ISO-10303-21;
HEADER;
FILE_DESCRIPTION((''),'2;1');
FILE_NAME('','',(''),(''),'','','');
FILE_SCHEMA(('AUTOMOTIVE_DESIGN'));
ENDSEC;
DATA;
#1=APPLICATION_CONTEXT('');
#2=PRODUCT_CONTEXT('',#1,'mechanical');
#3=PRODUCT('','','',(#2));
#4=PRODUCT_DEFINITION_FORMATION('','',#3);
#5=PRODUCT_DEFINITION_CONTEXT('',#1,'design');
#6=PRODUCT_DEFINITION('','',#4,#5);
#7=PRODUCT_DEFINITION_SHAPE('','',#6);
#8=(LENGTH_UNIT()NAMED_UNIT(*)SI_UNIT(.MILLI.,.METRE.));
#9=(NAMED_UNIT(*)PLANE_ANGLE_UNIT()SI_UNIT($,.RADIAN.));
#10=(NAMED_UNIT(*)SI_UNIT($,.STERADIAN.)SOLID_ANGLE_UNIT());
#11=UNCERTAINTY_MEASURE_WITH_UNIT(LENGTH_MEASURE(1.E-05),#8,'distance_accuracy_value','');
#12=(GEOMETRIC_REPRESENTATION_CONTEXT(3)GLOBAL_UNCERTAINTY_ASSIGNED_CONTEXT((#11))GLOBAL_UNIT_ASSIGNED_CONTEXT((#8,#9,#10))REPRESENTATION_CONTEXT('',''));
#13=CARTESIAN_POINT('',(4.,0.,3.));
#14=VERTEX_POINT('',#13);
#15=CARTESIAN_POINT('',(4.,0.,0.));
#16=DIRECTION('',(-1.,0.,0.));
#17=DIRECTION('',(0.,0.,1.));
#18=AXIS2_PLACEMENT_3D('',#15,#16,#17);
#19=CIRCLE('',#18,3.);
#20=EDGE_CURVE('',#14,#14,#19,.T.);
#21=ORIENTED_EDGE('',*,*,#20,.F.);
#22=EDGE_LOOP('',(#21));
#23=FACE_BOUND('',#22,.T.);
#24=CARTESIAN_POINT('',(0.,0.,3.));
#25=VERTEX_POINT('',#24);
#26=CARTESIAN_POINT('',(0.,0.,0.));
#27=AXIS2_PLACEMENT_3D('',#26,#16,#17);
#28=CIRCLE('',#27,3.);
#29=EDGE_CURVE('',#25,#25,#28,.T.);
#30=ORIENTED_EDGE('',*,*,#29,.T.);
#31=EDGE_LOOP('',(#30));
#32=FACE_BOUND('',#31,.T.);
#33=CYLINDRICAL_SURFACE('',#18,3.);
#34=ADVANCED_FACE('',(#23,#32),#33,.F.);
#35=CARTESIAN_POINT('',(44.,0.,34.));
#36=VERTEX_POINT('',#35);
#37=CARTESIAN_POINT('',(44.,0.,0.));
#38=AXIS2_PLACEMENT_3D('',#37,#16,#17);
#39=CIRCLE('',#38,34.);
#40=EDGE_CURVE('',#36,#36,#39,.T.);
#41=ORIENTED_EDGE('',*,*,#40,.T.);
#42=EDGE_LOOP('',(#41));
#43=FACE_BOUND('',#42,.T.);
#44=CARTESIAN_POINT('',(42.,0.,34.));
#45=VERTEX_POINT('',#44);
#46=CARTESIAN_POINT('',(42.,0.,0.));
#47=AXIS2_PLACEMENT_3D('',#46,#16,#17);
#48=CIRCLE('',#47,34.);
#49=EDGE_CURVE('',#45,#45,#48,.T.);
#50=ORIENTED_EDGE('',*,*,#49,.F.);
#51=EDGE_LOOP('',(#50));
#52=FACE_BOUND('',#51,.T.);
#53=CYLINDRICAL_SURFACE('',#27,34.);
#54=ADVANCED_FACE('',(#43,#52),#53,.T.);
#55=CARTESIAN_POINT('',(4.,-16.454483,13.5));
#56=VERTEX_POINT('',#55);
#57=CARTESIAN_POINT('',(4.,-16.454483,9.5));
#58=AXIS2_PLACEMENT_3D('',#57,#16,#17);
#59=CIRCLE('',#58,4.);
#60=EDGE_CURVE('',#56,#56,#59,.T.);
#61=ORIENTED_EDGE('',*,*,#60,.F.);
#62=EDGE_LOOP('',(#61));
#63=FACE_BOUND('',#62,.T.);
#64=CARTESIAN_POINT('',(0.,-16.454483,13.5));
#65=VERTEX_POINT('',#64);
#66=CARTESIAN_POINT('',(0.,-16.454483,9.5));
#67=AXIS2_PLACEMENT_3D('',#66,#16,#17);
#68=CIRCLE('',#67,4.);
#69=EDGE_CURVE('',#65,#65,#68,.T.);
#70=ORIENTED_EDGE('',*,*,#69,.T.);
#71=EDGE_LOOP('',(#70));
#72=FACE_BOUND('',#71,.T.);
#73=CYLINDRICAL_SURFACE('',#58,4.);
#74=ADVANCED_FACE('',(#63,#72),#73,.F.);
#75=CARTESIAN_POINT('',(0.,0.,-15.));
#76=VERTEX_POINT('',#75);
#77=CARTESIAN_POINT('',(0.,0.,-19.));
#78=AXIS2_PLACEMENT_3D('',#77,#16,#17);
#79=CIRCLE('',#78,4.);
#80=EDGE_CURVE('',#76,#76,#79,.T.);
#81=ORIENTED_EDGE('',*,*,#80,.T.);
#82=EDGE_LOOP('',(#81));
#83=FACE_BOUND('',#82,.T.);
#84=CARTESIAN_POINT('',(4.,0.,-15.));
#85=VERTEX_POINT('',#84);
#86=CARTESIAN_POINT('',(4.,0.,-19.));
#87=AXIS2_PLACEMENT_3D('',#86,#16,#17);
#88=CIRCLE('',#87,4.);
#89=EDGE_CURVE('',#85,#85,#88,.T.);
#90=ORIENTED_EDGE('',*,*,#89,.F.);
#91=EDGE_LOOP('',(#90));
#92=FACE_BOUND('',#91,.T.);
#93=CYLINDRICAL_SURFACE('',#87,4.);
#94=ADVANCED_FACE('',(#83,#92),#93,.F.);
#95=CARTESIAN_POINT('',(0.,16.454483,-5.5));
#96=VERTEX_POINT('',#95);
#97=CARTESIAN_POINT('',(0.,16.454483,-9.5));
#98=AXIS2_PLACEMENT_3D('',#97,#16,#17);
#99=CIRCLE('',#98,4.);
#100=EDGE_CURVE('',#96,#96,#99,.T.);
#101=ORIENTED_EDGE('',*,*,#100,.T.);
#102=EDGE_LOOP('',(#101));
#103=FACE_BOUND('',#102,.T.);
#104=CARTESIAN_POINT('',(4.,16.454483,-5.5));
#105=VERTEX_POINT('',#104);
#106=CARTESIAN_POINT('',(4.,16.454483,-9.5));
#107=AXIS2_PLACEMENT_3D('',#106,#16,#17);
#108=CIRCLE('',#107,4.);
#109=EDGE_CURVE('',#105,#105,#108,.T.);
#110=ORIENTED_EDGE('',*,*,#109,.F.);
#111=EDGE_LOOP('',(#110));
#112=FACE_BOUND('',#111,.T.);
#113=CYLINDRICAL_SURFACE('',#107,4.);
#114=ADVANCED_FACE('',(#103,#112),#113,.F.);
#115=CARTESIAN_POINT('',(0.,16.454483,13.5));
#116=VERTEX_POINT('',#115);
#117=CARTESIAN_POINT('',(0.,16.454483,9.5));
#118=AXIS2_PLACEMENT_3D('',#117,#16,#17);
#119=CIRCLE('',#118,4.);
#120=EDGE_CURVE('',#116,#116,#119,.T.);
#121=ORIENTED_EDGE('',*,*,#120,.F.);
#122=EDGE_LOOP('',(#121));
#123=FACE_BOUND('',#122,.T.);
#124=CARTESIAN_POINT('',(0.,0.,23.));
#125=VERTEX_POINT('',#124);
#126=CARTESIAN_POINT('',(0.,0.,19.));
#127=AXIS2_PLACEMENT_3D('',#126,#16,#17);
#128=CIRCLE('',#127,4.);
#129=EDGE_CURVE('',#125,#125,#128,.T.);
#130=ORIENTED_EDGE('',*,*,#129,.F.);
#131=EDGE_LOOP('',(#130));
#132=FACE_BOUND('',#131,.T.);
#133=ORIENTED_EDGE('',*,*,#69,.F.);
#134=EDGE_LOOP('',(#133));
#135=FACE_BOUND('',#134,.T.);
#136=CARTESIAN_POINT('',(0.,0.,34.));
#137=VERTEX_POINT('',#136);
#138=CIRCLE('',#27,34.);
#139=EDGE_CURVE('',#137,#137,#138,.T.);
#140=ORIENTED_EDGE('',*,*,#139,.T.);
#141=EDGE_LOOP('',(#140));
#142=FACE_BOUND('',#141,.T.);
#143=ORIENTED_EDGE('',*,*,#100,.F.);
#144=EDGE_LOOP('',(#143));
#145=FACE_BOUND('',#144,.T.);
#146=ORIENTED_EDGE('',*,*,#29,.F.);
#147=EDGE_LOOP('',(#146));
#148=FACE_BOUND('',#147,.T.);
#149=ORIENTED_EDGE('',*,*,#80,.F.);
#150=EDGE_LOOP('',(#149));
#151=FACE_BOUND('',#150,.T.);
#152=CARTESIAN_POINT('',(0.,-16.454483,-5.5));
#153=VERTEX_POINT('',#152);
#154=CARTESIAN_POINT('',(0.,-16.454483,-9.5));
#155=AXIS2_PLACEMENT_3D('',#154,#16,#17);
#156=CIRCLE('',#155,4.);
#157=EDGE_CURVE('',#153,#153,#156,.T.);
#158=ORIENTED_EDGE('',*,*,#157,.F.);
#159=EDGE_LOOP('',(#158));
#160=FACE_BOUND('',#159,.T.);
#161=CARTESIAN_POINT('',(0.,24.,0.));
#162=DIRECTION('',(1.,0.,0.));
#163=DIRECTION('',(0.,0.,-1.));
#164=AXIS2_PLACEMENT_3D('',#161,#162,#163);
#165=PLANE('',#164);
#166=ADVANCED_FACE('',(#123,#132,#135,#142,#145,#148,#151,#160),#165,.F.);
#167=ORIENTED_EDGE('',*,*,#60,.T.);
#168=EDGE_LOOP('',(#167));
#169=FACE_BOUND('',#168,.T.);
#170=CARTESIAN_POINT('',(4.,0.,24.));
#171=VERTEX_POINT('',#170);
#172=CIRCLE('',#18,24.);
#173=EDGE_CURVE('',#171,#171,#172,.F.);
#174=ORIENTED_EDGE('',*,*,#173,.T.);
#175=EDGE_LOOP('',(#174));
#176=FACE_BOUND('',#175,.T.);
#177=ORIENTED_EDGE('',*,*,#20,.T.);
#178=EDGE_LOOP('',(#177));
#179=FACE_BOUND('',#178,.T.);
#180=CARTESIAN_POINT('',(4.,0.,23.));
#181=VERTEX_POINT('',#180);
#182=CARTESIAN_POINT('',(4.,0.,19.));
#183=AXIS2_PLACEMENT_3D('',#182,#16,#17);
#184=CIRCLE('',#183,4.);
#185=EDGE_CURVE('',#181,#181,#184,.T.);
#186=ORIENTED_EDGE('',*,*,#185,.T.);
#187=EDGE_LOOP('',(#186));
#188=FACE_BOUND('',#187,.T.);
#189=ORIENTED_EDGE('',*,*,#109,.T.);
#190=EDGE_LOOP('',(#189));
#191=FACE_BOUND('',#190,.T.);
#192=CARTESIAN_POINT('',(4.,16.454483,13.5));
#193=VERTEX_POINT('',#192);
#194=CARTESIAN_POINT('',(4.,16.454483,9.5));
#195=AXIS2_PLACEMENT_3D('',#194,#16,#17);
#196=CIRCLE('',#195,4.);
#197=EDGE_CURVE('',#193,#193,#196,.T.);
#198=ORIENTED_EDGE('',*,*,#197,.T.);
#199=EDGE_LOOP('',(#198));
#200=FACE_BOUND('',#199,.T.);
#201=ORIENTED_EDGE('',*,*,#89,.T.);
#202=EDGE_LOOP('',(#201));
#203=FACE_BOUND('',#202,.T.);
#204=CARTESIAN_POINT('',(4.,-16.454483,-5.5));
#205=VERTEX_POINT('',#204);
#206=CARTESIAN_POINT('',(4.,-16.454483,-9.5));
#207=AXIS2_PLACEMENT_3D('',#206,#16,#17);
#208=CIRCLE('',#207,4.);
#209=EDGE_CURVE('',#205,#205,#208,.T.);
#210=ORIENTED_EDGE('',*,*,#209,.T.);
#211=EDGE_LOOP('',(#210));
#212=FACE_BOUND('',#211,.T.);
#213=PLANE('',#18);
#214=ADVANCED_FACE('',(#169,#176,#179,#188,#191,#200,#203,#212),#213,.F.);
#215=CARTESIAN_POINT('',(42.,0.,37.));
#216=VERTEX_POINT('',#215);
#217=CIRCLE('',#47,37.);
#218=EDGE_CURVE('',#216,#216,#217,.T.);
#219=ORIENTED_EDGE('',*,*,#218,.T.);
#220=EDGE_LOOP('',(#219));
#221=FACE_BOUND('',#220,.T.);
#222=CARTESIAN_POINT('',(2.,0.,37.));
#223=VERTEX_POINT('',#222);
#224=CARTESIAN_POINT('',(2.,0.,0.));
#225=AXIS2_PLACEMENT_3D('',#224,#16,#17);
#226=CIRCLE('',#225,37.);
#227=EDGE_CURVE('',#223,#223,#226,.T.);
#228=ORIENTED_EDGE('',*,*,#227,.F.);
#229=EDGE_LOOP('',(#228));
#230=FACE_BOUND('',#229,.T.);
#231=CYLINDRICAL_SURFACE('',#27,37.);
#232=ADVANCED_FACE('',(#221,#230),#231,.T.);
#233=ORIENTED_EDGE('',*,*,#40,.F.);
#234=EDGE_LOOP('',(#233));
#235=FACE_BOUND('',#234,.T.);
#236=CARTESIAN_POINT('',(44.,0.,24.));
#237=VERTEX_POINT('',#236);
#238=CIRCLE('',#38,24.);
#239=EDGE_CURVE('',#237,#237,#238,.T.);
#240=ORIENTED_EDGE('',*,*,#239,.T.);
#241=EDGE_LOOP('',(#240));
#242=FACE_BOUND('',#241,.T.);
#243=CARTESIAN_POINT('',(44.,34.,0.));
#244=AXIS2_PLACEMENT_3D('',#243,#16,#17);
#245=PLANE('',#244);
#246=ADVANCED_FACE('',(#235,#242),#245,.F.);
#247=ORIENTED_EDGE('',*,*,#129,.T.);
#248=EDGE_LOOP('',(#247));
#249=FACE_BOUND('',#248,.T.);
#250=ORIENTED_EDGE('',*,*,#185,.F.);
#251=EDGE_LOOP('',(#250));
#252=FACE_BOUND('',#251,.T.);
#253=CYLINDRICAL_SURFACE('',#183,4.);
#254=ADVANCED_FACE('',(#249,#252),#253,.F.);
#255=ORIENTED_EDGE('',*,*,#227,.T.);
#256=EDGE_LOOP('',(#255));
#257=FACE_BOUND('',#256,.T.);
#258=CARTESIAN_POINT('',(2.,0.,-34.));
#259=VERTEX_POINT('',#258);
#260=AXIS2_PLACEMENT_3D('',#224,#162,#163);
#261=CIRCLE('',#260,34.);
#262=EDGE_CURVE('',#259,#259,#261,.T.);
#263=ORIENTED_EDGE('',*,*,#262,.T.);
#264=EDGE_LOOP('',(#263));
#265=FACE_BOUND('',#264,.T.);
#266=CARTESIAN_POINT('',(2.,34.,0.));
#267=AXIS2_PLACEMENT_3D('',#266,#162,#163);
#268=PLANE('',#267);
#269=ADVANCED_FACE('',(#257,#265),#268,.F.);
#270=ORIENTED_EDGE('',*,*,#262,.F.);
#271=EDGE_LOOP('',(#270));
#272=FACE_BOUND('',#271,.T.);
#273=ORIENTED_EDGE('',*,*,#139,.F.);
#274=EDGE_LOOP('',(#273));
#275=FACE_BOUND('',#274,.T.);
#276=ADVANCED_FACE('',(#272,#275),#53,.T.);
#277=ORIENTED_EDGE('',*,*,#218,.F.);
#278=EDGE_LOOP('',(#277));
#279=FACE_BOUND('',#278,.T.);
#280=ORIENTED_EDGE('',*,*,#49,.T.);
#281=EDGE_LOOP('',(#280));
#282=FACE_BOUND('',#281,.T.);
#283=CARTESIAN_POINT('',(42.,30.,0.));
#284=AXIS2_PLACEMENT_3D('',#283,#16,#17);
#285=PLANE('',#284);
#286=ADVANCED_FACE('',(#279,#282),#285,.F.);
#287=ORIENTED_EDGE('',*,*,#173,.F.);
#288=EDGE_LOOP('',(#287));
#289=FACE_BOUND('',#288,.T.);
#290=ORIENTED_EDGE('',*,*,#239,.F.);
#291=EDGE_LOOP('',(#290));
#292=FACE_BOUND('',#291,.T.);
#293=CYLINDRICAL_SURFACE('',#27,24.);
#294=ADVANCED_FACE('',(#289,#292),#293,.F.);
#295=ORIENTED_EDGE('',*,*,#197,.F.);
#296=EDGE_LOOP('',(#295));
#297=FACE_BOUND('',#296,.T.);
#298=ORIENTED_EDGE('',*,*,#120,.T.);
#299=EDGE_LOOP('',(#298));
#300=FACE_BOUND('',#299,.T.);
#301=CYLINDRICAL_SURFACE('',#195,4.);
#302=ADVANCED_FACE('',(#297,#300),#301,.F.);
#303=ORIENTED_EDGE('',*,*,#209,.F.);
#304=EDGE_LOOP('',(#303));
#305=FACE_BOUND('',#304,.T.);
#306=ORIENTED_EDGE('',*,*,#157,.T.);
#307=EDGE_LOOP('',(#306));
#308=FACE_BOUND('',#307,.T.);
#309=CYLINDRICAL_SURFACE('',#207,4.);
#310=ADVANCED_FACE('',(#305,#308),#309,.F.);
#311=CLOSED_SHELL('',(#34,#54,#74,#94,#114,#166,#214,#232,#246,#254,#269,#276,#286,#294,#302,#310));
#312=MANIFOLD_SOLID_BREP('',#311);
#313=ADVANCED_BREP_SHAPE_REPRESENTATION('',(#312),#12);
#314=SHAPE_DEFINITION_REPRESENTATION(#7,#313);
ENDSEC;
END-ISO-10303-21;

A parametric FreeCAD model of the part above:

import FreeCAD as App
import Part
import Sketcher

V = App.Vector
Q = App.Units.Quantity

doc = App.newDocument("Part")
body = doc.addObject("PartDesign::Body", "Body")

sketch1 = body.newObject("Sketcher::SketchObject", "Sketch")
sketch1.AttachmentSupport = (doc.getObject("XY_Plane"), [""])
sketch1.MapMode = "FlatFace"
sketch1.addGeometry([
    Part.LineSegment(V(0, 34, 0), V(0, 24, 0)),
    Part.LineSegment(V(0, 24, 0), V(44, 24, 0)),
    Part.LineSegment(V(44, 24, 0), V(44, 34, 0)),
    Part.LineSegment(V(44, 34, 0), V(42, 34, 0)),
    Part.LineSegment(V(42, 34, 0), V(42, 30, 0)),
    Part.LineSegment(V(42, 30, 0), V(2, 30, 0)),
    Part.LineSegment(V(2, 30, 0), V(2, 34, 0)),
    Part.LineSegment(V(2, 34, 0), V(0, 34, 0)),
], False)
sketch1.addConstraint([
    Sketcher.Constraint("Coincident", 0, 2, 1, 1),
    Sketcher.Constraint("Coincident", 1, 2, 2, 1),
    Sketcher.Constraint("Coincident", 2, 2, 3, 1),
    Sketcher.Constraint("Coincident", 3, 2, 4, 1),
    Sketcher.Constraint("Coincident", 4, 2, 5, 1),
    Sketcher.Constraint("Coincident", 5, 2, 6, 1),
    Sketcher.Constraint("Coincident", 6, 2, 7, 1),
    Sketcher.Constraint("Coincident", 7, 2, 0, 1),
    Sketcher.Constraint("Vertical", 0),
    Sketcher.Constraint("Horizontal", 1),
    Sketcher.Constraint("Vertical", 2),
    Sketcher.Constraint("Horizontal", 3),
    Sketcher.Constraint("Vertical", 4),
    Sketcher.Constraint("Horizontal", 5),
    Sketcher.Constraint("Vertical", 6),
    Sketcher.Constraint("Horizontal", 7),
    Sketcher.Constraint("PointOnObject", 0, 2, -2),
    Sketcher.Constraint("Horizontal", 3, 2, 6, 2),
    Sketcher.Constraint("Equal", 3, 7),
    Sketcher.Constraint("DistanceX", 1, 1, 1, 2, Q("44 mm")),
    Sketcher.Constraint("DistanceX", 3, 2, 3, 1, Q("2 mm")),
    Sketcher.Constraint("DistanceY", 0, 2, 0, 1, Q("10 mm")),
    Sketcher.Constraint("DistanceY", 4, 2, 4, 1, Q("4 mm")),
    Sketcher.Constraint("DistanceY", -1, 1, 0, 2, Q("24 mm")),
])
revolution = body.newObject("PartDesign::Revolution", "Revolution")
revolution.Profile = sketch1
revolution.ReferenceAxis = (sketch1, ["H_Axis"])
revolution.Angle = 360

sketch2 = body.newObject("Sketcher::SketchObject", "Sketch001")
sketch2.AttachmentSupport = (doc.getObject("XY_Plane"), [""])
sketch2.MapMode = "FlatFace"
sketch2.addGeometry([
    Part.LineSegment(V(2, 30, 0), V(42, 30, 0)),
    Part.LineSegment(V(42, 30, 0), V(42, 37, 0)),
    Part.LineSegment(V(42, 37, 0), V(2, 37, 0)),
    Part.LineSegment(V(2, 37, 0), V(2, 30, 0)),
], False)
sketch2.addConstraint([
    Sketcher.Constraint("Coincident", 0, 2, 1, 1),
    Sketcher.Constraint("Coincident", 1, 2, 2, 1),
    Sketcher.Constraint("Coincident", 2, 2, 3, 1),
    Sketcher.Constraint("Coincident", 3, 2, 0, 1),
    Sketcher.Constraint("Horizontal", 0),
    Sketcher.Constraint("Vertical", 1),
    Sketcher.Constraint("Horizontal", 2),
    Sketcher.Constraint("Vertical", 3),
    Sketcher.Constraint("DistanceX", 0, 1, 0, 2, Q("40 mm")),
    Sketcher.Constraint("DistanceY", 1, 1, 1, 2, Q("7 mm")),
    Sketcher.Constraint("DistanceX", -1, 1, 0, 2, Q("42 mm")),
    Sketcher.Constraint("DistanceY", -1, 1, 0, 2, Q("30 mm")),
])
revolution2 = body.newObject("PartDesign::Revolution", "Revolution001")
revolution2.Profile = sketch2
revolution2.ReferenceAxis = (sketch2, ["H_Axis"])
revolution2.Angle = 360

sketch3 = body.newObject("Sketcher::SketchObject", "Sketch002")
sketch3.AttachmentSupport = (doc.getObject("YZ_Plane"), [""])
sketch3.MapMode = "FlatFace"
sketch3.addGeometry([
    Part.Circle(V(0, 0, 0), V(0, 0, 1), 24),
    Part.Circle(V(-16.454483, -9.5, 0), V(0, 0, 1), 4),
    Part.Circle(V(-16.454483, 9.5, 0), V(0, 0, 1), 4),
    Part.Circle(V(0, -19, 0), V(0, 0, 1), 4),
    Part.Circle(V(16.454483, -9.5, 0), V(0, 0, 1), 4),
    Part.Circle(V(0, 0, 0), V(0, 0, 1), 3),
    Part.Circle(V(0, 19, 0), V(0, 0, 1), 4),
    Part.Circle(V(16.454483, 9.5, 0), V(0, 0, 1), 4),
], False)
sketch3.addConstraint([
    Sketcher.Constraint("Coincident", 0, 3, -1, 1),
    Sketcher.Constraint("Coincident", 5, 3, -1, 1),
    Sketcher.Constraint("Equal", 1, 2),
    Sketcher.Constraint("Equal", 2, 3),
    Sketcher.Constraint("Equal", 3, 4),
    Sketcher.Constraint("Equal", 4, 6),
    Sketcher.Constraint("Equal", 6, 7),
    Sketcher.Constraint("Symmetric", 2, 3, 4, 3, -1, 1),
    Sketcher.Constraint("Symmetric", 3, 3, 6, 3, -1, 1),
    Sketcher.Constraint("Symmetric", 1, 3, 7, 3, -1, 1),
    Sketcher.Constraint("Symmetric", 1, 3, 4, 3, -2),
    Sketcher.Constraint("PointOnObject", 3, 3, -2),
    Sketcher.Constraint("Diameter", 0, Q("48 mm")),
    Sketcher.Constraint("Diameter", 1, Q("8 mm")),
    Sketcher.Constraint("Diameter", 5, Q("6 mm")),
    Sketcher.Constraint("DistanceY", 3, 3, -1, 1, Q("19 mm")),
    Sketcher.Constraint("DistanceY", 1, 3, 2, 3, Q("19 mm")),
    Sketcher.Constraint("DistanceX", 1, 3, -1, 1, Q("16.454483 mm")),
])
pad1 = body.newObject("PartDesign::Pad", "Pad")
pad1.Profile = sketch3
pad1.Length = 4

doc.recompute()
